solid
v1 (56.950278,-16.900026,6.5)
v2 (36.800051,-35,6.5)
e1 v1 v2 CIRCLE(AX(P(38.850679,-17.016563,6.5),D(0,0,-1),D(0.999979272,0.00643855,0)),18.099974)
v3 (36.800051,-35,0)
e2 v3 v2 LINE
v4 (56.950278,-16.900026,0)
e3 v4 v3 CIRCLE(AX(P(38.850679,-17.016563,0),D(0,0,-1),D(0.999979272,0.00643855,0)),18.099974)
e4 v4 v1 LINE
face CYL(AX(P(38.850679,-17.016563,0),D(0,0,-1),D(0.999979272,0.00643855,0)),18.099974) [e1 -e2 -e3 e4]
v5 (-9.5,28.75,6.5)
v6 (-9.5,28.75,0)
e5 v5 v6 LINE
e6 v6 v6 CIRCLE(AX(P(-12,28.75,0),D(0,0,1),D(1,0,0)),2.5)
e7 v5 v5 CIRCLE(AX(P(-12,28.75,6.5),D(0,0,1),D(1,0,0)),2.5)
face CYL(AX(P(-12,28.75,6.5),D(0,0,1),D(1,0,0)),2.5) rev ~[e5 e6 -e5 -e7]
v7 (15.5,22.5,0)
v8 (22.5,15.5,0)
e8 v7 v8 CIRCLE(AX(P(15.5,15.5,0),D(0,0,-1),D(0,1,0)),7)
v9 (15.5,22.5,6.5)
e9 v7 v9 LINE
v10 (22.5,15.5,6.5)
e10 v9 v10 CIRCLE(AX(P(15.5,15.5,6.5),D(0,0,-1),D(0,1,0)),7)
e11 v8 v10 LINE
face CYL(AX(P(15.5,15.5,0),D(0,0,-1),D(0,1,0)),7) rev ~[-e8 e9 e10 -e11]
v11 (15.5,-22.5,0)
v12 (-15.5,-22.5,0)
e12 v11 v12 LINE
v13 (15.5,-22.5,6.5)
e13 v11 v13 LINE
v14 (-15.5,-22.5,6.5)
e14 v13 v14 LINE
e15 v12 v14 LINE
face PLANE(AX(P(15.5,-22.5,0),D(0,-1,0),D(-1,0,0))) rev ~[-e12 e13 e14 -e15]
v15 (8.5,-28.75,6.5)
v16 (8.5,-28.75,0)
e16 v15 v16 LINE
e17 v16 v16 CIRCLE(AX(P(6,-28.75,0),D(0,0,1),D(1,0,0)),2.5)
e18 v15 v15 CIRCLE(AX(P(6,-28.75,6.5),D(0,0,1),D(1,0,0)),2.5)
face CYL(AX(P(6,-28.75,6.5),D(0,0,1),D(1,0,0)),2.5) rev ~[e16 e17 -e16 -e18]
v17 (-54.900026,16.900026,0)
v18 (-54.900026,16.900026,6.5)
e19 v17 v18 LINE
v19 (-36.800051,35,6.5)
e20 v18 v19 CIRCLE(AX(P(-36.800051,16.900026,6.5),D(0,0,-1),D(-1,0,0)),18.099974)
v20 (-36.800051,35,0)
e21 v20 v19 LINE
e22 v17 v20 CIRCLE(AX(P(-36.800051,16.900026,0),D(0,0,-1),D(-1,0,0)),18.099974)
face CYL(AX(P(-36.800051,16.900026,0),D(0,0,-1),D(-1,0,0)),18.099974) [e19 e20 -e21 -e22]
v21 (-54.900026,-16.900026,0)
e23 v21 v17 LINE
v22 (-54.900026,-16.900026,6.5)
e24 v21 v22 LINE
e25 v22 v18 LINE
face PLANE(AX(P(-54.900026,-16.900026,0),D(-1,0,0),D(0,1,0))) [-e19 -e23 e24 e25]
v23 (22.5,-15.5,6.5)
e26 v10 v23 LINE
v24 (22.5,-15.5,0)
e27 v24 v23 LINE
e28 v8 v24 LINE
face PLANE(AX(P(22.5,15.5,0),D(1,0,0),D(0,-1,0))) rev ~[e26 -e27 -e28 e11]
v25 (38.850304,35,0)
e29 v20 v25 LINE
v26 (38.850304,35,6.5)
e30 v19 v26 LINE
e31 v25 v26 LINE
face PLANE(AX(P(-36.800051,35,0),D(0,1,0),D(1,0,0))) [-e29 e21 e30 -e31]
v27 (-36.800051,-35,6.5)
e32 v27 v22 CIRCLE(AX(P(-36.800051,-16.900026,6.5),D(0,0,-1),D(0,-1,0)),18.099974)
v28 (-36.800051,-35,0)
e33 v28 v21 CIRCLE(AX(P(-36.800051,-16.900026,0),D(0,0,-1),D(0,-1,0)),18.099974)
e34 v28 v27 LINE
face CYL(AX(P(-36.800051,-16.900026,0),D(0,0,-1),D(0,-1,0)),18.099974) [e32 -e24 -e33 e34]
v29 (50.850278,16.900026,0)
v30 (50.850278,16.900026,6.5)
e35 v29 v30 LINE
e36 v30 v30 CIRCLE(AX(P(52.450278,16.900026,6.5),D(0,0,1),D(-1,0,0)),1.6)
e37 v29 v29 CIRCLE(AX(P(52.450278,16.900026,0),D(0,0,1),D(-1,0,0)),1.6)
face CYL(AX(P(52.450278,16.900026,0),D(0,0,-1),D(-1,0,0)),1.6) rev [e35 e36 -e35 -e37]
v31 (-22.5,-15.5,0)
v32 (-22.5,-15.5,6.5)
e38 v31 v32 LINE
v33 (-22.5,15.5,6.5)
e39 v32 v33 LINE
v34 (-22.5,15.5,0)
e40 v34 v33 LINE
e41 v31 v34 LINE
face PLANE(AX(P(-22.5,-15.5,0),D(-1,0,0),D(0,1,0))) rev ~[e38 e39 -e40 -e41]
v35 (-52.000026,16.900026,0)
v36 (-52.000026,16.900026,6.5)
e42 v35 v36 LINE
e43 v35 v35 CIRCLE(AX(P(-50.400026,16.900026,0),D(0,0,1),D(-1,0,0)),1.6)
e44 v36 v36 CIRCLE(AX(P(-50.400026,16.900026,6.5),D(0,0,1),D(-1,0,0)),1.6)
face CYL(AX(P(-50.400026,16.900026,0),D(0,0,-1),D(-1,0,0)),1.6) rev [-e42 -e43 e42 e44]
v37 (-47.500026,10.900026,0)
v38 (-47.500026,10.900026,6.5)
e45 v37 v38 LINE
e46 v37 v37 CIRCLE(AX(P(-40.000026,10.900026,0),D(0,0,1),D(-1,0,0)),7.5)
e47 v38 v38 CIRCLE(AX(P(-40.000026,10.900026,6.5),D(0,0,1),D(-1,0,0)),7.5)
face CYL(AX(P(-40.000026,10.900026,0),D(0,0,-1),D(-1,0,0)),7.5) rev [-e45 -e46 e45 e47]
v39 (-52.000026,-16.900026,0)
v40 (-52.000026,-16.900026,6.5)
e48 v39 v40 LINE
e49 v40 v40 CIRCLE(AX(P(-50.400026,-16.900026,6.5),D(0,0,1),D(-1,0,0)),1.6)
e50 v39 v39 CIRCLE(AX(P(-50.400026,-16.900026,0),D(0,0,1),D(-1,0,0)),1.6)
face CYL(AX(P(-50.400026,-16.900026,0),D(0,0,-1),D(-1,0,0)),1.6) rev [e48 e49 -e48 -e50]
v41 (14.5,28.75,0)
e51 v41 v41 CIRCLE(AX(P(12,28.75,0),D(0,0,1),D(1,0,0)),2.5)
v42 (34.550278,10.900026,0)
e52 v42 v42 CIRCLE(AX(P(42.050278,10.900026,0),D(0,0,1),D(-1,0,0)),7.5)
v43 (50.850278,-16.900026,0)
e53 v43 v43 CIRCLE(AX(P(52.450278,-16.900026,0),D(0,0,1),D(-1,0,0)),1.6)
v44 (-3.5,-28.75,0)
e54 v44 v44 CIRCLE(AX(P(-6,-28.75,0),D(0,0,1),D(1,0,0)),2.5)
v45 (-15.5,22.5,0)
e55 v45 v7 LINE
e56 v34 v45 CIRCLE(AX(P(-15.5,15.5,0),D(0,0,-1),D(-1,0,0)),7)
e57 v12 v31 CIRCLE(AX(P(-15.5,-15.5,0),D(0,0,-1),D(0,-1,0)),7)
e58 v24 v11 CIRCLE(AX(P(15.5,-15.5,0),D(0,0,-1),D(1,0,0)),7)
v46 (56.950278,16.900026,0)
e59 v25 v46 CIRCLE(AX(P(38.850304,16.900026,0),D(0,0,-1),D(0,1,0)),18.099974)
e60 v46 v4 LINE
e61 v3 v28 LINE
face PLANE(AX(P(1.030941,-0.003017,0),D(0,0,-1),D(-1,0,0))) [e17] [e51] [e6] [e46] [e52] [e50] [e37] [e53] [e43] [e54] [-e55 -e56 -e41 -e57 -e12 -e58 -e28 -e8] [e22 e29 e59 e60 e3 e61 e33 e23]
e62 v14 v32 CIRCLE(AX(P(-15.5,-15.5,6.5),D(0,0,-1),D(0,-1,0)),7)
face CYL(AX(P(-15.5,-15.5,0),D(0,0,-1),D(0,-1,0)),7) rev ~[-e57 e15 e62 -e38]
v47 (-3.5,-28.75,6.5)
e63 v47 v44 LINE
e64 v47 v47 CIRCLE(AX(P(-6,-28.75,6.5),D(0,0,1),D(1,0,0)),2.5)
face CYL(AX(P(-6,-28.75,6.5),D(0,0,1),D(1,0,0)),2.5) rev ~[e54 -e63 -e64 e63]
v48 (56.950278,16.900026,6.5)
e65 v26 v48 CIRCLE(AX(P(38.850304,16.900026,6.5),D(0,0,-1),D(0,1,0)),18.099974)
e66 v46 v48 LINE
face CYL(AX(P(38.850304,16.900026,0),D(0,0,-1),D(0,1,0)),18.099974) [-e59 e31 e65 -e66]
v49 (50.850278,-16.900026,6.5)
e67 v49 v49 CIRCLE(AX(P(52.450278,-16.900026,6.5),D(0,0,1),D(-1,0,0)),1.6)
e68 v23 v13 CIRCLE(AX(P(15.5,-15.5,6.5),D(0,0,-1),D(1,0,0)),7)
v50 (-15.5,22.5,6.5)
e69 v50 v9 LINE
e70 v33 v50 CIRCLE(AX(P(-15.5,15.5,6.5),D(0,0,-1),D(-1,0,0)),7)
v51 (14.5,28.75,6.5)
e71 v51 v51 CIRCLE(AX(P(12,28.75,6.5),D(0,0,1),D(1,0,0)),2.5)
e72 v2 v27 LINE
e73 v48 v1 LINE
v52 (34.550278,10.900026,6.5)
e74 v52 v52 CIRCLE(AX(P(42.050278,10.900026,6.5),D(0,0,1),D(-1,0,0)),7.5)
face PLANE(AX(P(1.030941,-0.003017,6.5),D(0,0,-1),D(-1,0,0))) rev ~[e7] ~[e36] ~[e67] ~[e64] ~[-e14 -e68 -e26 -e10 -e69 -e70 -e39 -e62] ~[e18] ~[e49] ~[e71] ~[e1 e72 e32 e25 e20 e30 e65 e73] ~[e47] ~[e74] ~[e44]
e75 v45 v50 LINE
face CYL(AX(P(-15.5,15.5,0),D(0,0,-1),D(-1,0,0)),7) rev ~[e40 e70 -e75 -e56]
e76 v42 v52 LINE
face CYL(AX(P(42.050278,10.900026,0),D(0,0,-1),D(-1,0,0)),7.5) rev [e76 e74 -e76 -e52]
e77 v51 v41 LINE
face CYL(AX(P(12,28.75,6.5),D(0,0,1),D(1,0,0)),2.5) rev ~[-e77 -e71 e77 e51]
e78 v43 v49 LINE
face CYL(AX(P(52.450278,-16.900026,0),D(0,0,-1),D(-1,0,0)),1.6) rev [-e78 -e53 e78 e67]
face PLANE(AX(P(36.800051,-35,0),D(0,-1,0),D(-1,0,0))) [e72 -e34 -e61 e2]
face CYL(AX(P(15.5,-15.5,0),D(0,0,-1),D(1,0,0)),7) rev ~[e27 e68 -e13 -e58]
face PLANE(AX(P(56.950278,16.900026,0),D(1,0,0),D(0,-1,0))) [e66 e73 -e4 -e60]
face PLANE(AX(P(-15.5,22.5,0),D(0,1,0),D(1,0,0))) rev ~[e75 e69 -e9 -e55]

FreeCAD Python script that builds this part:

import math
import FreeCAD as App
import Part
import Sketcher

V = App.Vector

doc = App.newDocument("Part")
body = doc.addObject("PartDesign::Body", "Body")

sketch1 = body.newObject("Sketcher::SketchObject", "Sketch")
sketch1.AttachmentSupport = (doc.getObject("XY_Plane"), [""])
sketch1.MapMode = "FlatFace"
sketch1.addGeometry([
    Part.LineSegment(V(38.9, 35, 0), V(-36.8, 35, 0)),
    Part.ArcOfCircle(Part.Circle(V(-36.8, 16.9, 0), V(0, 0, 1), 18.1), math.radians(90), math.radians(180)),
    Part.LineSegment(V(-54.9, 16.9, 0), V(-54.9, -16.9, 0)),
    Part.ArcOfCircle(Part.Circle(V(-36.8, -16.9, 0), V(0, 0, 1), 18.1), math.radians(-180), math.radians(-90)),
    Part.LineSegment(V(-36.8, -35, 0), V(36.8, -35, 0)),
    Part.ArcOfCircle(Part.Circle(V(38.9, -17, 0), V(0, 0, 1), 18.1), math.radians(-97), math.radians(0)),
    Part.LineSegment(V(57, -16.9, 0), V(57, 16.9, 0)),
    Part.ArcOfCircle(Part.Circle(V(38.9, 16.9, 0), V(0, 0, 1), 18.1), math.radians(0), math.radians(90)),
    Part.Circle(V(52.5, -16.9, 0), V(0, 0, 1), 1.6),
    Part.Circle(V(-50.4, -16.9, 0), V(0, 0, 1), 1.6),
    Part.Circle(V(42.1, 10.9, 0), V(0, 0, 1), 7.5),
    Part.Circle(V(52.5, 16.9, 0), V(0, 0, 1), 1.6),
    Part.LineSegment(V(-15.5, 22.5, 0), V(15.5, 22.5, 0)),
    Part.ArcOfCircle(Part.Circle(V(15.5, 15.5, 0), V(0, 0, 1), 7), math.radians(0), math.radians(90)),
    Part.LineSegment(V(22.5, 15.5, 0), V(22.5, -15.5, 0)),
    Part.ArcOfCircle(Part.Circle(V(15.5, -15.5, 0), V(0, 0, 1), 7), math.radians(-90), math.radians(0)),
    Part.LineSegment(V(15.5, -22.5, 0), V(-15.5, -22.5, 0)),
    Part.ArcOfCircle(Part.Circle(V(-15.5, -15.5, 0), V(0, 0, 1), 7), math.radians(-180), math.radians(-90)),
    Part.LineSegment(V(-22.5, -15.5, 0), V(-22.5, 15.5, 0)),
    Part.ArcOfCircle(Part.Circle(V(-15.5, 15.5, 0), V(0, 0, 1), 7), math.radians(90), math.radians(180)),
    Part.Circle(V(-40, 10.9, 0), V(0, 0, 1), 7.5),
    Part.Circle(V(-50.4, 16.9, 0), V(0, 0, 1), 1.6),
], False)
sketch1.addConstraint([
    Sketcher.Constraint("Tangent", 0, 2, 1, 1),
    Sketcher.Constraint("Tangent", 1, 2, 2, 1),
    Sketcher.Constraint("Tangent", 2, 2, 3, 1),
    Sketcher.Constraint("Tangent", 3, 2, 4, 1),
    Sketcher.Constraint("Coincident", 4, 2, 5, 1),
    Sketcher.Constraint("Coincident", 5, 2, 6, 1),
    Sketcher.Constraint("Tangent", 6, 2, 7, 1),
    Sketcher.Constraint("Tangent", 7, 2, 0, 1),
    Sketcher.Constraint("Tangent", 12, 2, 13, 2),
    Sketcher.Constraint("Tangent", 13, 1, 14, 1),
    Sketcher.Constraint("Tangent", 14, 2, 15, 2),
    Sketcher.Constraint("Tangent", 15, 1, 16, 1),
    Sketcher.Constraint("Tangent", 16, 2, 17, 2),
    Sketcher.Constraint("Tangent", 17, 1, 18, 1),
    Sketcher.Constraint("Tangent", 18, 2, 19, 2),
    Sketcher.Constraint("Tangent", 19, 1, 12, 1),
    Sketcher.Constraint("Horizontal", 0),
    Sketcher.Constraint("Vertical", 2),
    Sketcher.Constraint("Horizontal", 4),
    Sketcher.Constraint("Vertical", 6),
    Sketcher.Constraint("Horizontal", 12),
    Sketcher.Constraint("Vertical", 14),
    Sketcher.Constraint("Horizontal", 16),
    Sketcher.Constraint("Vertical", 18),
    Sketcher.Constraint("Equal", 1, 3),
    Sketcher.Constraint("Equal", 3, 5),
    Sketcher.Constraint("Equal", 5, 7),
    Sketcher.Constraint("Equal", 8, 9),
    Sketcher.Constraint("Equal", 9, 11),
    Sketcher.Constraint("Equal", 13, 15),
    Sketcher.Constraint("Equal", 15, 17),
    Sketcher.Constraint("Equal", 17, 19),
    Sketcher.Constraint("Equal", 10, 20),
    Sketcher.Constraint("Equal", 11, 21),
    Sketcher.Constraint("Symmetric", 13, 3, 17, 3, -1, 1),
    Sketcher.Constraint("Symmetric", 0, 2, 4, 2, -1, 1),
    Sketcher.Constraint("Symmetric", 8, 3, 11, 3, -1),
    Sketcher.Constraint("Symmetric", 9, 3, 21, 3, -1),
    Sketcher.Constraint("Horizontal", 3, 3, 8, 3),
    Sketcher.Constraint("Horizontal", 8, 3, 9, 3),
    Sketcher.Constraint("Horizontal", 10, 3, 20, 3),
    Sketcher.Constraint("Horizontal", 2, 2, 5, 2),
    Sketcher.Constraint("Equal", 16, 14),
    Sketcher.Constraint("Diameter", 10, 15.0),
    Sketcher.Constraint("Radius", 13, 7.0),
    Sketcher.Constraint("Diameter", 8, 3.2),
    Sketcher.Constraint("DistanceX", 12, 1, 12, 2, 31.0),
    Sketcher.Constraint("DistanceY", -1, 1, 0, 2, 35.0),
    Sketcher.Constraint("DistanceY", 10, 3, 7, 3, 6.0),
    Sketcher.Constraint("DistanceX", 10, 3, 8, 3, 10.4),
    Sketcher.Constraint("DistanceX", 9, 3, 20, 3, 10.4),
    Sketcher.Constraint("DistanceX", 1, 2, 21, 3, 4.5),
    Sketcher.Constraint("DistanceX", 8, 3, 5, 2, 4.5),
    Sketcher.Constraint("Radius", 1, 18.099974),
    Sketcher.Constraint("DistanceX", 0, 2, 0, 1, 75.650355),
    Sketcher.Constraint("DistanceX", 4, 1, 4, 2, 73.600102),
])
pad1 = body.newObject("PartDesign::Pad", "Pad")
pad1.Profile = sketch1
pad1.Length = 6.5

sketch2 = body.newObject("Sketcher::SketchObject", "Sketch001")
sketch2.AttachmentSupport = (doc.getObject("XY_Plane"), [""])
sketch2.MapMode = "FlatFace"
sketch2.AttachmentOffset = App.Placement(V(0, 0, 6.5), App.Rotation())
sketch2.addGeometry([
    Part.Circle(V(-12, 28.8, 0), V(0, 0, 1), 2.5),
    Part.Circle(V(12, 28.8, 0), V(0, 0, 1), 2.5),
    Part.Circle(V(-6, -28.8, 0), V(0, 0, 1), 2.5),
    Part.Circle(V(6, -28.8, 0), V(0, 0, 1), 2.5),
], False)
sketch2.addConstraint([
    Sketcher.Constraint("Equal", 0, 1),
    Sketcher.Constraint("Equal", 1, 2),
    Sketcher.Constraint("Equal", 2, 3),
    Sketcher.Constraint("Symmetric", 0, 3, 1, 3, -2),
    Sketcher.Constraint("Symmetric", 2, 3, 3, 3, -2),
    Sketcher.Constraint("Diameter", 0, 5.0),
    Sketcher.Constraint("DistanceX", 0, 3, -1, 1, 12.0),
    Sketcher.Constraint("DistanceX", 2, 3, -1, 1, 6.0),
    Sketcher.Constraint("DistanceY", 2, 3, 0, 3, 57.5),
    Sketcher.Constraint("DistanceY", -1, 1, 0, 3, 28.75),
])
pocket1 = body.newObject("PartDesign::Pocket", "Pocket")
pocket1.Profile = sketch2
pocket1.Type = "ThroughAll"

doc.recompute()
